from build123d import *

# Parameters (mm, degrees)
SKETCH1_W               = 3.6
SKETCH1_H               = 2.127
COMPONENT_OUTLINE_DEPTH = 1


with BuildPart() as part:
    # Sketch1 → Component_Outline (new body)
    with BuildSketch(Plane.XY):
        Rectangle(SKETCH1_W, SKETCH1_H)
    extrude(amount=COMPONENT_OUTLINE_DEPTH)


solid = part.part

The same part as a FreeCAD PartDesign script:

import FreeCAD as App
import Part
import Sketcher
Q = App.Units.Quantity

doc = App.newDocument("Part")
body = doc.addObject("PartDesign::Body", "Body")

sketch1 = doc.addObject("Sketcher::SketchObject", "Sketch")
body.addObject(sketch1)
sketch1.AttachmentSupport = (doc.XY_Plane, [""])
sketch1.MapMode = "FlatFace"
sketch1.addGeometry(Part.LineSegment(App.Vector(-1.8, 1.0635, 0), App.Vector(-1.8, -1.0635, 0)), False)
sketch1.addGeometry(Part.LineSegment(App.Vector(-1.8, -1.0635, 0), App.Vector(1.8, -1.0635, 0)), False)
sketch1.addGeometry(Part.LineSegment(App.Vector(1.8, -1.0635, 0), App.Vector(1.8, 1.0635, 0)), False)
sketch1.addGeometry(Part.LineSegment(App.Vector(1.8, 1.0635, 0), App.Vector(-1.8, 1.0635, 0)), False)
sketch1.addConstraint(Sketcher.Constraint("Coincident", 0, 2, 1, 1))
sketch1.addConstraint(Sketcher.Constraint("Coincident", 1, 2, 2, 1))
sketch1.addConstraint(Sketcher.Constraint("Coincident", 2, 2, 3, 1))
sketch1.addConstraint(Sketcher.Constraint("Coincident", 3, 2, 0, 1))
sketch1.addConstraint(Sketcher.Constraint("Vertical", 0))
sketch1.addConstraint(Sketcher.Constraint("Horizontal", 1))
sketch1.addConstraint(Sketcher.Constraint("Vertical", 2))
sketch1.addConstraint(Sketcher.Constraint("Horizontal", 3))
sketch1.addConstraint(Sketcher.Constraint("Symmetric", 0, 2, 2, 2, -1, 1))
sketch1.addConstraint(Sketcher.Constraint("DistanceX", 1, 1, 1, 2, Q("3.6 mm")))
sketch1.addConstraint(Sketcher.Constraint("DistanceY", 0, 2, 0, 1, Q("2.127 mm")))
pad1 = doc.addObject("PartDesign::Pad", "Pad")
body.addObject(pad1)
pad1.Profile = sketch1
pad1.Length = 1

doc.recompute()
